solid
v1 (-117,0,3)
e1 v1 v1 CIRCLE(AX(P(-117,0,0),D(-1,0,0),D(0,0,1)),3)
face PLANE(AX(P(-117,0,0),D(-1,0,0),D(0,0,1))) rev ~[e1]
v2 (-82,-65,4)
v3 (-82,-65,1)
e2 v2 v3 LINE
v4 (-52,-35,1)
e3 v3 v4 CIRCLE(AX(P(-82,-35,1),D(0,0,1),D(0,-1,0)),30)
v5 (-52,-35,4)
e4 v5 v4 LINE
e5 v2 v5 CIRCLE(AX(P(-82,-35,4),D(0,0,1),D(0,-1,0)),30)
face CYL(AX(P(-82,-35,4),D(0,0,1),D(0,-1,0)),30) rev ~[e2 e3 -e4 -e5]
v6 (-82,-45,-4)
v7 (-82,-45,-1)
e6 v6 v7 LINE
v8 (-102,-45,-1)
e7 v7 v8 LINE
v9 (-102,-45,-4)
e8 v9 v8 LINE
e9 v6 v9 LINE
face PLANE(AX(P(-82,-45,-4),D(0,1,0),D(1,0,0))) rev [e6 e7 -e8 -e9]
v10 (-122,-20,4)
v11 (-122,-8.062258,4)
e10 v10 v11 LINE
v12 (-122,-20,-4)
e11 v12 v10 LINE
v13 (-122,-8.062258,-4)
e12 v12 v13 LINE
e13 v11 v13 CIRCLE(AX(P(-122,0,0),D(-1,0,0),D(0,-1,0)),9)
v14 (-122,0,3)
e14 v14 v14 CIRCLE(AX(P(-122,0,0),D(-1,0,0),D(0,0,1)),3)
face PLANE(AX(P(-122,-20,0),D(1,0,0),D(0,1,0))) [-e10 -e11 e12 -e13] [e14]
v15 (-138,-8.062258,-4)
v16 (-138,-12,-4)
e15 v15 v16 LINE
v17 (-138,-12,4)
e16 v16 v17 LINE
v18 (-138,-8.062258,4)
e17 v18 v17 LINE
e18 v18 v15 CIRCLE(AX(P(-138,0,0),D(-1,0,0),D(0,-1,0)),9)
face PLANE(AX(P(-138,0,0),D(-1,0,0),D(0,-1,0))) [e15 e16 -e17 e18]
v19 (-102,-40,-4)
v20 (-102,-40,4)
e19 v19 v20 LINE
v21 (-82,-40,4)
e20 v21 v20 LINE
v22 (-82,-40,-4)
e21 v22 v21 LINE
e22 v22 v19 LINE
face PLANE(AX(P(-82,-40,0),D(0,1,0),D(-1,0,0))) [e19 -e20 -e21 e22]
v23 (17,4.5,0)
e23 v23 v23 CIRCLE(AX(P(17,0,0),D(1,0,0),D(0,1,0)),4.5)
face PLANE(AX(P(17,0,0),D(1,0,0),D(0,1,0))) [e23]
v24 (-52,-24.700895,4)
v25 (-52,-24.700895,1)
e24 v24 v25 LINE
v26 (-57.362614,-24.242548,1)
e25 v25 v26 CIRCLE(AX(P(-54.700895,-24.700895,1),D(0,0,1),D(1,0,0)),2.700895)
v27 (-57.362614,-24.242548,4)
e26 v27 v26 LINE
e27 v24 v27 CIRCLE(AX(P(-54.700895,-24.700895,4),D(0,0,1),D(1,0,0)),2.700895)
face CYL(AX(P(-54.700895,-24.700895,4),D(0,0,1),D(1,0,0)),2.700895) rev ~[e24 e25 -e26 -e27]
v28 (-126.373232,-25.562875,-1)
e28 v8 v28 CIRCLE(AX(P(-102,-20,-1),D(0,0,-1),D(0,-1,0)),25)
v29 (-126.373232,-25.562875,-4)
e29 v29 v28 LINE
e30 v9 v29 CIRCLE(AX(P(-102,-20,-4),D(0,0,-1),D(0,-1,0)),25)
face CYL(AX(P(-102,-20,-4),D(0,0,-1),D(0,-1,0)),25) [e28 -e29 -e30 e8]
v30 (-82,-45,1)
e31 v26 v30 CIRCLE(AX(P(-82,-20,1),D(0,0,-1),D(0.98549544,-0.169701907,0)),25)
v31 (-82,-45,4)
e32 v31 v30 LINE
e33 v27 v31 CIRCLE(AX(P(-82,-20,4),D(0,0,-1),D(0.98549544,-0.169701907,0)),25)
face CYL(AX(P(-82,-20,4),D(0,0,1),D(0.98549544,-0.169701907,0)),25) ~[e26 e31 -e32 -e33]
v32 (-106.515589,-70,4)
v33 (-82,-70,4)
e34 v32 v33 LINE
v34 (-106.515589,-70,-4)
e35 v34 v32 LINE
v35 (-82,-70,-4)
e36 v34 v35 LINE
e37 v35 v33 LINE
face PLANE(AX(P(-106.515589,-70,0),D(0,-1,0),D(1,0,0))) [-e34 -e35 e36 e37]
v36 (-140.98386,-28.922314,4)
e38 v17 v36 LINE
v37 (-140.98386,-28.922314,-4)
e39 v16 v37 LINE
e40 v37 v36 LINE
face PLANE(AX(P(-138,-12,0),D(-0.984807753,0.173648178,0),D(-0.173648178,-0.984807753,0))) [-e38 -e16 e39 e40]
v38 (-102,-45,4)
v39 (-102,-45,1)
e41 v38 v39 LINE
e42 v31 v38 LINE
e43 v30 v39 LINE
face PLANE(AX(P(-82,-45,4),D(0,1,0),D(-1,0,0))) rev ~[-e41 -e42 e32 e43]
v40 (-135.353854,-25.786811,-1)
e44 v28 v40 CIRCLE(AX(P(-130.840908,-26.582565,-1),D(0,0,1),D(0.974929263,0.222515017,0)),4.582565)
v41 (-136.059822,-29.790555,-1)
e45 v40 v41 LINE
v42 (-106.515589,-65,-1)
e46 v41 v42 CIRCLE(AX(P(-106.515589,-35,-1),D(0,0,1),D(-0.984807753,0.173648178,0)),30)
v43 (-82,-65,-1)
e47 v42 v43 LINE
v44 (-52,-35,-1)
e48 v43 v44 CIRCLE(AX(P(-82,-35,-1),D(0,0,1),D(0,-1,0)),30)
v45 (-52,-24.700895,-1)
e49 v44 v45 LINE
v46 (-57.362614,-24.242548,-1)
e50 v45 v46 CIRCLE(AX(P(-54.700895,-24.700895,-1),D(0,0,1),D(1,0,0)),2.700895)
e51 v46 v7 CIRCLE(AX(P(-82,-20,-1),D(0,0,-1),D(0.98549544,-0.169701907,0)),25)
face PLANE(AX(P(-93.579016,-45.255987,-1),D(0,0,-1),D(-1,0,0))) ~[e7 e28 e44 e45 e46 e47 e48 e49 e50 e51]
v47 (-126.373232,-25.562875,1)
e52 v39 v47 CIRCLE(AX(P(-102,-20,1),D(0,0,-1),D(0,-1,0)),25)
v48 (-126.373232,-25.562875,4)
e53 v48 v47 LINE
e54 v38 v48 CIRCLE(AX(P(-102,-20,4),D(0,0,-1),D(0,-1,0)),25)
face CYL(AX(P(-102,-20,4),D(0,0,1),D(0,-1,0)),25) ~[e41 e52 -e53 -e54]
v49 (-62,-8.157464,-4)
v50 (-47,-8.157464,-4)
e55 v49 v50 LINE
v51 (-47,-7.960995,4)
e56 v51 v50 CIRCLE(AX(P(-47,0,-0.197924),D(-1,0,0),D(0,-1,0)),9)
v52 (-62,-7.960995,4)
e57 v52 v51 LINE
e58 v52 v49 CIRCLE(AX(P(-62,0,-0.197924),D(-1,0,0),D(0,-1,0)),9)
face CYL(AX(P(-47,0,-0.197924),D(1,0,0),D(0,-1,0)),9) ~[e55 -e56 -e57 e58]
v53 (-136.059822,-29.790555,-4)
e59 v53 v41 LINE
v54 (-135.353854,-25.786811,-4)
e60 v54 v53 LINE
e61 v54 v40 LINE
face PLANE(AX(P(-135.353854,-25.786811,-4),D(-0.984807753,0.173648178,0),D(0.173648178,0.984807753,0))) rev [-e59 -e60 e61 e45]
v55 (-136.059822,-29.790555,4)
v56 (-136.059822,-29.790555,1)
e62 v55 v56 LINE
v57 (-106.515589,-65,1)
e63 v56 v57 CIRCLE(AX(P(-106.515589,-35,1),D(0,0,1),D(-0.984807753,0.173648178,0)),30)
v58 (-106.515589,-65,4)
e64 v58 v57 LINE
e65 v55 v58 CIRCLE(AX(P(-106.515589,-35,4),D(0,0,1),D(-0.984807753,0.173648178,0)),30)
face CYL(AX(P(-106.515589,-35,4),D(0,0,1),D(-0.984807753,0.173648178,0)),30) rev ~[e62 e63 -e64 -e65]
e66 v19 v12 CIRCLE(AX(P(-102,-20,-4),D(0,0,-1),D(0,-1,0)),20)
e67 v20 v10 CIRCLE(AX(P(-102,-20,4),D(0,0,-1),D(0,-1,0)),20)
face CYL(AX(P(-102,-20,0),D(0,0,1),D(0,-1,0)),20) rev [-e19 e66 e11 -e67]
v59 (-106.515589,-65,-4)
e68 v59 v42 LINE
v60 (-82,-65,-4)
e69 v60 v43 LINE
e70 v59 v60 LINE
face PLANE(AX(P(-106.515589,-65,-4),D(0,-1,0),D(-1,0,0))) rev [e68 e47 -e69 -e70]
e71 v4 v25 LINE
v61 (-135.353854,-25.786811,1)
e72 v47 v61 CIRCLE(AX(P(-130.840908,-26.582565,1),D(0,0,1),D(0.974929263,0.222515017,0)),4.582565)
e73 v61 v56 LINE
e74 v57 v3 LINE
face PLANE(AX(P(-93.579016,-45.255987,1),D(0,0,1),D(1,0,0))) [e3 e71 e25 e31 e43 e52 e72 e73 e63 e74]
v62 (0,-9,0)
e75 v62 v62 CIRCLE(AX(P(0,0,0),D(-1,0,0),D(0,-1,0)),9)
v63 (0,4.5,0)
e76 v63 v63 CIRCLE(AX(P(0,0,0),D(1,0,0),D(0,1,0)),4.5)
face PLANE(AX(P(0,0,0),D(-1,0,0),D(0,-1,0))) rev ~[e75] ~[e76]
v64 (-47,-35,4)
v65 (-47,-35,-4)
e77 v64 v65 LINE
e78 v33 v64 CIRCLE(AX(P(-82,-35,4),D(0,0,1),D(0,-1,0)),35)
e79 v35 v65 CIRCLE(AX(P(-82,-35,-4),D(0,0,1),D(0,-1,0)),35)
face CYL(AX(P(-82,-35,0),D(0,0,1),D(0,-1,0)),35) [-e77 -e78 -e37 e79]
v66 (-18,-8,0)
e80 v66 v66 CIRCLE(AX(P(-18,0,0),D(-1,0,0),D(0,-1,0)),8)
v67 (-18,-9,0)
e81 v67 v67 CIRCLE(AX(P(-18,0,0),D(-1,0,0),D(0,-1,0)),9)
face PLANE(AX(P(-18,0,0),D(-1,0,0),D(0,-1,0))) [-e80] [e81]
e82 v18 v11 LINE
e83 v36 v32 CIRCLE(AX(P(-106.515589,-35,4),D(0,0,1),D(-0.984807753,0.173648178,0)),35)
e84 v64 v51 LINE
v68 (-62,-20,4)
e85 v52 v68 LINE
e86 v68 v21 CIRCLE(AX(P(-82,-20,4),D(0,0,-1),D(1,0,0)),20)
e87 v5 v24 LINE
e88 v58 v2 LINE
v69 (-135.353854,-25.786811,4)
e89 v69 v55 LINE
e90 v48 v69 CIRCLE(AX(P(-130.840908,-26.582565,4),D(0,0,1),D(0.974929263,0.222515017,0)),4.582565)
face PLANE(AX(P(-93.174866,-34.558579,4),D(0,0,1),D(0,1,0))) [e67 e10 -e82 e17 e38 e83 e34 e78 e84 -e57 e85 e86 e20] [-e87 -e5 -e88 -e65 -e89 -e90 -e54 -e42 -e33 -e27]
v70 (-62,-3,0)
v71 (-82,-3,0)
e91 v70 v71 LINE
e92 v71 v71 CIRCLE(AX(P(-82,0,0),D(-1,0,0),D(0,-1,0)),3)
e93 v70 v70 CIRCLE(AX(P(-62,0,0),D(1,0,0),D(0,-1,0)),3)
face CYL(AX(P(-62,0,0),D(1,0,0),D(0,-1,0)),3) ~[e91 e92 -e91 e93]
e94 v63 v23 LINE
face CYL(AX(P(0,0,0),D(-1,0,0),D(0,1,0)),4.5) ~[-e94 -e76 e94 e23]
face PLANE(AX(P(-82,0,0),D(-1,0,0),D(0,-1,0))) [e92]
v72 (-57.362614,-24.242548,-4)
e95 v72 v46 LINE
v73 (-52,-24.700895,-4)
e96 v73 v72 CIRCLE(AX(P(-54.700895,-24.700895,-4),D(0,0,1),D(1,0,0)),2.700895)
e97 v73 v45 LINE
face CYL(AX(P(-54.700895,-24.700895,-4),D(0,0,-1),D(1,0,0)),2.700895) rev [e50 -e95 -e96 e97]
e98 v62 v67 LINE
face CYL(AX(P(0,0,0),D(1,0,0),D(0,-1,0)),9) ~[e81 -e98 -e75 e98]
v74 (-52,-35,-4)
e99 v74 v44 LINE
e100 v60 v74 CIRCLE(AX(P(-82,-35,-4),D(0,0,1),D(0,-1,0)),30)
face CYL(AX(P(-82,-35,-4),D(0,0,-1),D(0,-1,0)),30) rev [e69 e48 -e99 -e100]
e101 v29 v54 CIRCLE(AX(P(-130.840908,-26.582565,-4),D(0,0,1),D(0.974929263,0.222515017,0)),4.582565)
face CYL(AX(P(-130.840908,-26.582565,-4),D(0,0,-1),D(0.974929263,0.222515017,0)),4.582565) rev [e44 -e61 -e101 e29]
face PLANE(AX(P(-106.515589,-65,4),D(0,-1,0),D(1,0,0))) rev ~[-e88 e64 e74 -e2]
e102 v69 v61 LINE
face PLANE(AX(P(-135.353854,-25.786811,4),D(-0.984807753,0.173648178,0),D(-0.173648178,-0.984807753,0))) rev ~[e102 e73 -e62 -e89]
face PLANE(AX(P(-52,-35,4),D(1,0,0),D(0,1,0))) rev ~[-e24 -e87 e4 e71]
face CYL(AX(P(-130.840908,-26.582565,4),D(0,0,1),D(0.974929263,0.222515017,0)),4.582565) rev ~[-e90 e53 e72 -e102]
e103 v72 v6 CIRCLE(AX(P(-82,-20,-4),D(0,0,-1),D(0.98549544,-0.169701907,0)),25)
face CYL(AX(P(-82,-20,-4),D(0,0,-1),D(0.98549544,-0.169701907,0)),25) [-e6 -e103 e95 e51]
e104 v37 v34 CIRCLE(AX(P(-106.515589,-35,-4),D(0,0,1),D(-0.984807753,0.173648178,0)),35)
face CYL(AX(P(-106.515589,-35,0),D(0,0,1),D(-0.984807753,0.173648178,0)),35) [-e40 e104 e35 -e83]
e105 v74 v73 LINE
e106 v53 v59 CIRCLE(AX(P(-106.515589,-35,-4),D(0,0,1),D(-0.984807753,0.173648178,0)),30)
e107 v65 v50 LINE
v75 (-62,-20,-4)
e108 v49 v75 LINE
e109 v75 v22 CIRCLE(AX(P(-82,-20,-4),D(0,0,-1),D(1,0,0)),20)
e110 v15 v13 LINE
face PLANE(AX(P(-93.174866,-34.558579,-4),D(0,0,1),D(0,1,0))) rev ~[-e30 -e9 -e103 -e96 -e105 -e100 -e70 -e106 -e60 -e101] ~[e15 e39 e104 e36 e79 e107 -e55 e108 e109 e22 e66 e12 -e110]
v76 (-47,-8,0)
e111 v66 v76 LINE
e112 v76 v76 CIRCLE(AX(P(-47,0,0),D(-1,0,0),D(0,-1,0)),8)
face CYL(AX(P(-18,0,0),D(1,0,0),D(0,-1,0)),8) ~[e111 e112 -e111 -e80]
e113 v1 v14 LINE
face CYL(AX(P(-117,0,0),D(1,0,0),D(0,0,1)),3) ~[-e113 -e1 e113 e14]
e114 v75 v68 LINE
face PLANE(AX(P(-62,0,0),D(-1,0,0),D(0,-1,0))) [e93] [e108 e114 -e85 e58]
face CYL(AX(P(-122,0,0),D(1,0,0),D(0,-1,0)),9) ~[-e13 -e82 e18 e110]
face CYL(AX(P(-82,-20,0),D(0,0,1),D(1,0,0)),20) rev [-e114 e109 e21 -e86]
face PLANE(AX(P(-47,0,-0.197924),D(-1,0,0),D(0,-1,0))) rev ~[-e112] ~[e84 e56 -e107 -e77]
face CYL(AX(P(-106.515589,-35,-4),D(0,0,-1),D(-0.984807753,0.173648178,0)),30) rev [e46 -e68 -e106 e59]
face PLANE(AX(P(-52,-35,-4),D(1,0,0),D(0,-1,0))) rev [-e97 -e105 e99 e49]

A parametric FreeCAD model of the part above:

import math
import FreeCAD as App
import Part
import Sketcher
from FreeCAD import Vector
Q = App.Units.Quantity

doc = App.newDocument("Part")
body = doc.addObject("PartDesign::Body", "Body")

# Sketch on YZ plane
sketch1 = body.newObject("Sketcher::SketchObject", "Sketch")
sketch1.AttachmentSupport = (doc.getObject("YZ_Plane"), [""])
sketch1.MapMode = "FlatFace"
sketch1.addGeometry(Part.Circle(Vector(0, 0, 0), Vector(0, 0, 1), 4.5), False)
sketch1.addConstraint([
    Sketcher.Constraint("Coincident", 0, 3, -1, 1),
    Sketcher.Constraint("Diameter", 0, 9.0),
])
pad1 = body.newObject("PartDesign::Pad", "Pad")
pad1.Profile = sketch1
pad1.Length = 17

# Sketch on YZ plane
sketch2 = body.newObject("Sketcher::SketchObject", "Sketch001")
sketch2.AttachmentSupport = (doc.getObject("YZ_Plane"), [""])
sketch2.MapMode = "FlatFace"
sketch2.addGeometry(Part.Circle(Vector(0, 0, 0), Vector(0, 0, 1), 9), False)
sketch2.addConstraint([
    Sketcher.Constraint("Coincident", 0, 3, -1, 1),
    Sketcher.Constraint("Diameter", 0, 18.0),
])
pad2 = body.newObject("PartDesign::Pad", "Pad001")
pad2.Profile = sketch2
pad2.Length = 18
pad2.Reversed = True

# Sketch on YZ plane
sketch3 = body.newObject("Sketcher::SketchObject", "Sketch002")
sketch3.AttachmentSupport = (doc.getObject("YZ_Plane"), [""])
sketch3.MapMode = "FlatFace"
sketch3.AttachmentOffset = App.Placement(Vector(0, 0, -18), App.Rotation())
sketch3.addGeometry(Part.Circle(Vector(0, 0, 0), Vector(0, 0, 1), 8), False)
sketch3.addConstraint([
    Sketcher.Constraint("Coincident", 0, 3, -1, 1),
    Sketcher.Constraint("Diameter", 0, 16.0),
])
pad3 = body.newObject("PartDesign::Pad", "Pad002")
pad3.Profile = sketch3
pad3.Length = 29
pad3.Reversed = True

# Sketch on YZ plane
sketch4 = body.newObject("Sketcher::SketchObject", "Sketch003")
sketch4.AttachmentSupport = (doc.getObject("YZ_Plane"), [""])
sketch4.MapMode = "FlatFace"
sketch4.AttachmentOffset = App.Placement(Vector(0, 0, -47), App.Rotation())
sketch4.addGeometry(Part.Circle(Vector(0, 0, 0), Vector(0, 0, 1), 9), False)
sketch4.addConstraint([
    Sketcher.Constraint("PointOnObject", 0, 3, -2),
    Sketcher.Constraint("Diameter", 0, 18.0),
    Sketcher.Constraint("DistanceY", 0, 3, -1, 1, 0.197924),
])
pad4 = body.newObject("PartDesign::Pad", "Pad003")
pad4.Profile = sketch4
pad4.Length = 15
pad4.Reversed = True

# Sketch on YZ plane
sketch5 = body.newObject("Sketcher::SketchObject", "Sketch004")
sketch5.AttachmentSupport = (doc.getObject("YZ_Plane"), [""])
sketch5.MapMode = "FlatFace"
sketch5.AttachmentOffset = App.Placement(Vector(0, 0, -62), App.Rotation())
sketch5.addGeometry(Part.Circle(Vector(0, 0, 0), Vector(0, 0, 1), 3), False)
sketch5.addConstraint([
    Sketcher.Constraint("Coincident", 0, 3, -1, 1),
    Sketcher.Constraint("Diameter", 0, 6.0),
])
pad5 = body.newObject("PartDesign::Pad", "Pad004")
pad5.Profile = sketch5
pad5.Length = 20
pad5.Reversed = True

# Sketch on XY plane
sketch6 = body.newObject("Sketcher::SketchObject", "Sketch005")
sketch6.AttachmentSupport = (doc.getObject("XY_Plane"), [""])
sketch6.MapMode = "FlatFace"
sketch6.addGeometry([
    Part.LineSegment(Vector(-62, 0, 0), Vector(-62, -20, 0)),  # 0
    Part.ArcOfCircle(Part.Circle(Vector(-82, -20, 0), Vector(0, 0, 1), 20), math.radians(-90), math.radians(0)),  # 1
    Part.LineSegment(Vector(-82, -40, 0), Vector(-102, -40, 0)),  # 2
    Part.ArcOfCircle(Part.Circle(Vector(-102, -20, 0), Vector(0, 0, 1), 20), math.radians(180), math.radians(270)),  # 3
    Part.LineSegment(Vector(-122, -20, 0), Vector(-122, 0, 0)),  # 4
    Part.LineSegment(Vector(-122, 0, 0), Vector(-138, 0, 0)),  # 5
    Part.LineSegment(Vector(-138, 0, 0), Vector(-138, -12, 0)),  # 6
    Part.LineSegment(Vector(-138, -12, 0), Vector(-141, -29, 0)),  # 7
    Part.ArcOfCircle(Part.Circle(Vector(-107, -35, 0), Vector(0, 0, 1), 35), math.radians(170), math.radians(270)),  # 8
    Part.LineSegment(Vector(-107, -70, 0), Vector(-82, -70, 0)),  # 9
    Part.ArcOfCircle(Part.Circle(Vector(-82, -35, 0), Vector(0, 0, 1), 35), math.radians(-90), math.radians(0)),  # 10
    Part.LineSegment(Vector(-47, -35, 0), Vector(-47, 0, 0)),  # 11
    Part.LineSegment(Vector(-47, 0, 0), Vector(-62, 0, 0)),  # 12
], False)
sketch6.addConstraint([
    Sketcher.Constraint("Tangent", 0, 2, 1, 2),
    Sketcher.Constraint("Tangent", 1, 1, 2, 1),
    Sketcher.Constraint("Tangent", 2, 2, 3, 2),
    Sketcher.Constraint("Tangent", 3, 1, 4, 1),
    Sketcher.Constraint("Coincident", 4, 2, 5, 1),
    Sketcher.Constraint("Coincident", 5, 2, 6, 1),
    Sketcher.Constraint("Coincident", 6, 2, 7, 1),
    Sketcher.Constraint("Tangent", 7, 2, 8, 1),
    Sketcher.Constraint("Tangent", 8, 2, 9, 1),
    Sketcher.Constraint("Tangent", 9, 2, 10, 1),
    Sketcher.Constraint("Tangent", 10, 2, 11, 1),
    Sketcher.Constraint("Coincident", 11, 2, 12, 1),
    Sketcher.Constraint("Coincident", 12, 2, 0, 1),
    Sketcher.Constraint("Vertical", 0),
    Sketcher.Constraint("Horizontal", 2),
    Sketcher.Constraint("Vertical", 4),
    Sketcher.Constraint("Horizontal", 5),
    Sketcher.Constraint("Vertical", 6),
    Sketcher.Constraint("Horizontal", 9),
    Sketcher.Constraint("Vertical", 11),
    Sketcher.Constraint("Horizontal", 12),
    Sketcher.Constraint("Equal", 1, 3),
    Sketcher.Constraint("Equal", 8, 10),
    Sketcher.Constraint("PointOnObject", 4, 2, -1),
    Sketcher.Constraint("PointOnObject", 11, 2, -1),
    Sketcher.Constraint("Vertical", 1, 3, 10, 3),
    Sketcher.Constraint("Equal", 2, 0),
    Sketcher.Constraint("Radius", 1, 20.0),
    Sketcher.Constraint("Radius", 8, 35.0),
    Sketcher.Constraint("DistanceX", 2, 2, 2, 1, 20.0),
    Sketcher.Constraint("DistanceX", 5, 2, 5, 1, 16.0),
    Sketcher.Constraint("DistanceY", 6, 2, 6, 1, 12.0),
    Sketcher.Constraint("DistanceY", 11, 1, 11, 2, 35.0),
    Sketcher.Constraint("Angle", 7, Q("-100 deg")),
    Sketcher.Constraint("DistanceX", 1, 3, -1, 1, 82.0),
])
pad6 = body.newObject("PartDesign::Pad", "Pad005")
pad6.Profile = sketch6
pad6.Length = 8
pad6.Midplane = True
body2 = doc.addObject("PartDesign::Body", "Body001")

# Sketch on YZ plane
sketch7 = body2.newObject("Sketcher::SketchObject", "Sketch006")
sketch7.AttachmentSupport = (doc.getObject("YZ_Plane001"), [""])
sketch7.MapMode = "FlatFace"
sketch7.AttachmentOffset = App.Placement(Vector(0, 0, -117), App.Rotation())
sketch7.addGeometry(Part.Circle(Vector(0, 0, 0), Vector(0, 0, 1), 3), False)
sketch7.addConstraint([
    Sketcher.Constraint("Coincident", 0, 3, -1, 1),
    Sketcher.Constraint("Diameter", 0, 6.0),
])
pad7 = body2.newObject("PartDesign::Pad", "Pad006")
pad7.Profile = sketch7
pad7.Length = 5
pad7.Reversed = True
doc.recompute()

boolean = body.newObject("PartDesign::Boolean", "Boolean")
boolean.Type = "Fuse"
boolean.addObjects([body2])

# Sketch on YZ plane
sketch8 = body.newObject("Sketcher::SketchObject", "Sketch007")
sketch8.AttachmentSupport = (doc.getObject("YZ_Plane"), [""])
sketch8.MapMode = "FlatFace"
sketch8.AttachmentOffset = App.Placement(Vector(0, 0, -122), App.Rotation())
sketch8.addGeometry(Part.Circle(Vector(0, 0, 0), Vector(0, 0, 1), 9), False)
sketch8.addConstraint([
    Sketcher.Constraint("Coincident", 0, 3, -1, 1),
    Sketcher.Constraint("Diameter", 0, 18.0),
])
pad8 = body.newObject("PartDesign::Pad", "Pad007")
pad8.Profile = sketch8
pad8.Length = 16
pad8.Reversed = True

# Sketch on XY plane
sketch9 = body.newObject("Sketcher::SketchObject", "Sketch008")
sketch9.AttachmentSupport = (doc.getObject("XY_Plane"), [""])
sketch9.MapMode = "FlatFace"
sketch9.AttachmentOffset = App.Placement(Vector(0, 0, 4), App.Rotation())
sketch9.addGeometry([
    Part.LineSegment(Vector(-106.5, -65, 0), Vector(-82, -65, 0)),  # 0
    Part.ArcOfCircle(Part.Circle(Vector(-82, -35, 0), Vector(0, 0, 1), 30), math.radians(-90), math.radians(0)),  # 1
    Part.LineSegment(Vector(-52, -35, 0), Vector(-52, -24.7, 0)),  # 2
    Part.ArcOfCircle(Part.Circle(Vector(-54.7, -24.7, 0), Vector(0, 0, 1), 2.7), math.radians(0), math.radians(170)),  # 3
    Part.ArcOfCircle(Part.Circle(Vector(-82, -20, 0), Vector(0, 0, 1), 25), math.radians(-90), math.radians(-10)),  # 4
    Part.LineSegment(Vector(-82, -45, 0), Vector(-102, -45, 0)),  # 5
    Part.ArcOfCircle(Part.Circle(Vector(-102, -20, 0), Vector(0, 0, 1), 25), math.radians(-167), math.radians(-90)),  # 6
    Part.ArcOfCircle(Part.Circle(Vector(-130.8, -26.6, 0), Vector(0, 0, 1), 4.6), math.radians(13), math.radians(170)),  # 7
    Part.LineSegment(Vector(-135.4, -25.8, 0), Vector(-136.1, -29.8, 0)),  # 8
    Part.ArcOfCircle(Part.Circle(Vector(-106.5, -35, 0), Vector(0, 0, 1), 30), math.radians(170), math.radians(270)),  # 9
], False)
sketch9.addConstraint([
    Sketcher.Constraint("Tangent", 0, 2, 1, 1),
    Sketcher.Constraint("Tangent", 1, 2, 2, 1),
    Sketcher.Constraint("Tangent", 2, 2, 3, 1),
    Sketcher.Constraint("Tangent", 3, 2, 4, 2),
    Sketcher.Constraint("Tangent", 4, 1, 5, 1),
    Sketcher.Constraint("Tangent", 5, 2, 6, 2),
    Sketcher.Constraint("Tangent", 6, 1, 7, 1),
    Sketcher.Constraint("Tangent", 7, 2, 8, 1),
    Sketcher.Constraint("Tangent", 8, 2, 9, 1),
    Sketcher.Constraint("Tangent", 9, 2, 0, 1),
    Sketcher.Constraint("Horizontal", 0),
    Sketcher.Constraint("Vertical", 2),
    Sketcher.Constraint("Horizontal", 5),
    Sketcher.Constraint("Equal", 4, 6),
    Sketcher.Constraint("Equal", 1, 9),
    Sketcher.Constraint("Vertical", 1, 3, 4, 3),
    Sketcher.Constraint("Radius", 1, 30.0),
    Sketcher.Constraint("Radius", 4, 25.0),
    Sketcher.Constraint("DistanceX", 5, 2, 5, 1, 20.0),
    Sketcher.Constraint("Angle", 8, Q("-100 deg")),
    Sketcher.Constraint("DistanceX", 1, 3, -1, 1, 82.0),
    Sketcher.Constraint("DistanceY", 1, 3, -1, 1, 35.0),
    Sketcher.Constraint("DistanceY", 4, 3, -1, 1, 20.0),
    Sketcher.Constraint("Radius", 3, 2.700895),
    Sketcher.Constraint("Radius", 7, 4.582565),
    Sketcher.Constraint("DistanceX", 0, 1, 0, 2, 24.515589),
])
pocket1 = body.newObject("PartDesign::Pocket", "Pocket")
pocket1.Profile = sketch9
pocket1.Length = 3
doc.recompute()

mirrored = body.newObject("PartDesign::Mirrored", "Mirrored")
mirrored.Originals = [pocket1]
mirrored.MirrorPlane = (doc.getObject("XY_Plane"), [""])
body.Tip = mirrored

doc.recompute()
